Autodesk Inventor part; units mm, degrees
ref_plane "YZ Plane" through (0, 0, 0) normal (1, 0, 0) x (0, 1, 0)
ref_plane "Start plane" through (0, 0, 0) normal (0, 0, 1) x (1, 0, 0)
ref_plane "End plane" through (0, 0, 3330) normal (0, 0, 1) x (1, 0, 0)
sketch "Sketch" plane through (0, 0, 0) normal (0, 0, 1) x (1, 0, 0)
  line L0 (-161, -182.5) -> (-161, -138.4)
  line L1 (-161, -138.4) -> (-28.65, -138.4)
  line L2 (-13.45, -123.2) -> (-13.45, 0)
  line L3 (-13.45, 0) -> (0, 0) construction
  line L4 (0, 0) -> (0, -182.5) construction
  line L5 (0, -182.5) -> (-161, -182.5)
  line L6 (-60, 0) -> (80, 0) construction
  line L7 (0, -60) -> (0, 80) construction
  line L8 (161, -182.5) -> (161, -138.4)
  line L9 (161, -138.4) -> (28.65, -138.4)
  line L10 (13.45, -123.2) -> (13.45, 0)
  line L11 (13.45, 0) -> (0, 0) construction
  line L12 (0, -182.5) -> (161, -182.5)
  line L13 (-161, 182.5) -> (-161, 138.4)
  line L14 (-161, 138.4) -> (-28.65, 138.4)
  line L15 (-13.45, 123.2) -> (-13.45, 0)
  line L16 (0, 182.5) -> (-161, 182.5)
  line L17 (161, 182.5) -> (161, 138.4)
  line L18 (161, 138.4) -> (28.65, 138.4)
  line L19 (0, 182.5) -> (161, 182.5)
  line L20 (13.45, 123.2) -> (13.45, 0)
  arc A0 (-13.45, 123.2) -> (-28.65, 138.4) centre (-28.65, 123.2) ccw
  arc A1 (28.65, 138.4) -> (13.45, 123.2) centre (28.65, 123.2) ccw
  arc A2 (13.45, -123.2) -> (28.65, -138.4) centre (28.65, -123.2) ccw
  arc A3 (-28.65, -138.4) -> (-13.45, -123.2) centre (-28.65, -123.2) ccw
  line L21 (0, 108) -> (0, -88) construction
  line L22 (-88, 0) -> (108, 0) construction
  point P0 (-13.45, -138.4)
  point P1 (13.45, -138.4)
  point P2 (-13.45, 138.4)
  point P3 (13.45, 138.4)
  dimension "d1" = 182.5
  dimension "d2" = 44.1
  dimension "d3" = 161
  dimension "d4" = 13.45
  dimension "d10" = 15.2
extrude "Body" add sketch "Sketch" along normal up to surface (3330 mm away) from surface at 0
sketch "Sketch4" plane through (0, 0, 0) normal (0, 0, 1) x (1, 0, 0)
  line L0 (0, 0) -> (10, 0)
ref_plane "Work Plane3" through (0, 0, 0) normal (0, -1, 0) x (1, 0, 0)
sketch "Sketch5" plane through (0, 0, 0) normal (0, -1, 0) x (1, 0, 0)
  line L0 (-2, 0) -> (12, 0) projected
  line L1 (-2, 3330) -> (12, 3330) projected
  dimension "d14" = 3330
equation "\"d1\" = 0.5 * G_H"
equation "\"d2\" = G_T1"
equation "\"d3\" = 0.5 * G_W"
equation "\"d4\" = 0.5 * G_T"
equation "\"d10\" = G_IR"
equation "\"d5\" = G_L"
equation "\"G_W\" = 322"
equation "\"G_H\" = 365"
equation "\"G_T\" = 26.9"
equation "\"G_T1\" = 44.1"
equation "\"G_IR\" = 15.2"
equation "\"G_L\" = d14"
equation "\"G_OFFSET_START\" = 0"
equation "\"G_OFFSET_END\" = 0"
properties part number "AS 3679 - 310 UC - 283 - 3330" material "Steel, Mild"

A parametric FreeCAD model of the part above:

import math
import FreeCAD as App
import Part
import Sketcher

V = App.Vector
Q = App.Units.Quantity

doc = App.newDocument("Part")
params = doc.addObject("Spreadsheet::Sheet", "Params")
for row, (alias, value) in enumerate([
    ("sketch1_radius", "15.2 mm"),
    ("sketch1_height", "44.1 mm"),
    ("pad1_length", "3330 mm"),
], start=1):
    params.set(f"A{row}", alias)
    params.set(f"B{row}", "=" + value)
    params.setAlias(f"B{row}", alias)

body = doc.addObject("PartDesign::Body", "Body")

# Sketch on XY plane
sketch1 = body.newObject("Sketcher::SketchObject", "Sketch")
sketch1.AttachmentSupport = (doc.getObject("XY_Plane"), [""])
sketch1.MapMode = "FlatFace"
sketch1.addGeometry(Part.LineSegment(V(-161, -138.4, 0), V(-161, -182.5, 0)), False)
sketch1.addGeometry(Part.LineSegment(V(-161, -182.5, 0), V(161, -182.5, 0)), False)
sketch1.addGeometry(Part.LineSegment(V(161, -182.5, 0), V(161, -138.4, 0)), False)
sketch1.addGeometry(Part.LineSegment(V(161, -138.4, 0), V(28.65, -138.4, 0)), False)
sketch1.addGeometry(Part.ArcOfCircle(Part.Circle(V(28.65, -123.2, 0), V(0, 0, 1), 15.2), math.radians(180), math.radians(270)), False)
sketch1.addGeometry(Part.LineSegment(V(13.45, -123.2, 0), V(13.45, 123.2, 0)), False)
sketch1.addGeometry(Part.ArcOfCircle(Part.Circle(V(28.65, 123.2, 0), V(0, 0, 1), 15.2), math.radians(90), math.radians(180)), False)
sketch1.addGeometry(Part.LineSegment(V(28.65, 138.4, 0), V(161, 138.4, 0)), False)
sketch1.addGeometry(Part.LineSegment(V(161, 138.4, 0), V(161, 182.5, 0)), False)
sketch1.addGeometry(Part.LineSegment(V(161, 182.5, 0), V(-161, 182.5, 0)), False)
sketch1.addGeometry(Part.LineSegment(V(-161, 182.5, 0), V(-161, 138.4, 0)), False)
sketch1.addGeometry(Part.LineSegment(V(-161, 138.4, 0), V(-28.65, 138.4, 0)), False)
sketch1.addGeometry(Part.ArcOfCircle(Part.Circle(V(-28.65, 123.2, 0), V(0, 0, 1), 15.2), math.radians(0), math.radians(90)), False)
sketch1.addGeometry(Part.LineSegment(V(-13.45, 123.2, 0), V(-13.45, -123.2, 0)), False)
sketch1.addGeometry(Part.ArcOfCircle(Part.Circle(V(-28.65, -123.2, 0), V(0, 0, 1), 15.2), math.radians(-90), math.radians(0)), False)
sketch1.addGeometry(Part.LineSegment(V(-28.65, -138.4, 0), V(-161, -138.4, 0)), False)
sketch1.addConstraint(Sketcher.Constraint("Coincident", 0, 2, 1, 1))
sketch1.addConstraint(Sketcher.Constraint("Coincident", 1, 2, 2, 1))
sketch1.addConstraint(Sketcher.Constraint("Coincident", 2, 2, 3, 1))
sketch1.addConstraint(Sketcher.Constraint("Tangent", 3, 2, 4, 2))
sketch1.addConstraint(Sketcher.Constraint("Tangent", 4, 1, 5, 1))
sketch1.addConstraint(Sketcher.Constraint("Tangent", 5, 2, 6, 2))
sketch1.addConstraint(Sketcher.Constraint("Tangent", 6, 1, 7, 1))
sketch1.addConstraint(Sketcher.Constraint("Coincident", 7, 2, 8, 1))
sketch1.addConstraint(Sketcher.Constraint("Coincident", 8, 2, 9, 1))
sketch1.addConstraint(Sketcher.Constraint("Coincident", 9, 2, 10, 1))
sketch1.addConstraint(Sketcher.Constraint("Coincident", 10, 2, 11, 1))
sketch1.addConstraint(Sketcher.Constraint("Tangent", 11, 2, 12, 2))
sketch1.addConstraint(Sketcher.Constraint("Tangent", 12, 1, 13, 1))
sketch1.addConstraint(Sketcher.Constraint("Tangent", 13, 2, 14, 2))
sketch1.addConstraint(Sketcher.Constraint("Tangent", 14, 1, 15, 1))
sketch1.addConstraint(Sketcher.Constraint("Coincident", 15, 2, 0, 1))
sketch1.addConstraint(Sketcher.Constraint("Vertical", 0))
sketch1.addConstraint(Sketcher.Constraint("Horizontal", 1))
sketch1.addConstraint(Sketcher.Constraint("Vertical", 2))
sketch1.addConstraint(Sketcher.Constraint("Horizontal", 3))
sketch1.addConstraint(Sketcher.Constraint("Vertical", 5))
sketch1.addConstraint(Sketcher.Constraint("Horizontal", 7))
sketch1.addConstraint(Sketcher.Constraint("Vertical", 8))
sketch1.addConstraint(Sketcher.Constraint("Horizontal", 9))
sketch1.addConstraint(Sketcher.Constraint("Vertical", 10))
sketch1.addConstraint(Sketcher.Constraint("Horizontal", 11))
sketch1.addConstraint(Sketcher.Constraint("Vertical", 13))
sketch1.addConstraint(Sketcher.Constraint("Horizontal", 15))
sketch1.addConstraint(Sketcher.Constraint("Equal", 4, 6))
sketch1.addConstraint(Sketcher.Constraint("Equal", 6, 12))
sketch1.addConstraint(Sketcher.Constraint("Equal", 12, 14))
sketch1.addConstraint(Sketcher.Constraint("Symmetric", 4, 3, 12, 3, -1, 1))
sketch1.addConstraint(Sketcher.Constraint("Symmetric", 0, 2, 8, 2, -1, 1))
sketch1.addConstraint(Sketcher.Constraint("Symmetric", 7, 2, 10, 2, -2))
sketch1.addConstraint(Sketcher.Constraint("Symmetric", 2, 2, 15, 2, -2))
sketch1.addConstraint(Sketcher.Constraint("Radius", 4, Q("15.2 mm")))
sketch1.addConstraint(Sketcher.Constraint("DistanceY", 0, 2, 0, 1, Q("44.1 mm")))
sketch1.addConstraint(Sketcher.Constraint("DistanceX", 0, 2, -1, 1, Q("161 mm")))
sketch1.addConstraint(Sketcher.Constraint("DistanceY", 0, 2, -1, 1, Q("182.5 mm")))
sketch1.addConstraint(Sketcher.Constraint("DistanceX", -1, 1, 4, 1, Q("13.45 mm")))
sketch1.setExpression("Constraints[35]", "Params.sketch1_radius")
sketch1.setExpression("Constraints[36]", "Params.sketch1_height")
pad1 = body.newObject("PartDesign::Pad", "Pad")
pad1.Profile = sketch1
pad1.setExpression("Length", "Params.pad1_length")

doc.recompute()
